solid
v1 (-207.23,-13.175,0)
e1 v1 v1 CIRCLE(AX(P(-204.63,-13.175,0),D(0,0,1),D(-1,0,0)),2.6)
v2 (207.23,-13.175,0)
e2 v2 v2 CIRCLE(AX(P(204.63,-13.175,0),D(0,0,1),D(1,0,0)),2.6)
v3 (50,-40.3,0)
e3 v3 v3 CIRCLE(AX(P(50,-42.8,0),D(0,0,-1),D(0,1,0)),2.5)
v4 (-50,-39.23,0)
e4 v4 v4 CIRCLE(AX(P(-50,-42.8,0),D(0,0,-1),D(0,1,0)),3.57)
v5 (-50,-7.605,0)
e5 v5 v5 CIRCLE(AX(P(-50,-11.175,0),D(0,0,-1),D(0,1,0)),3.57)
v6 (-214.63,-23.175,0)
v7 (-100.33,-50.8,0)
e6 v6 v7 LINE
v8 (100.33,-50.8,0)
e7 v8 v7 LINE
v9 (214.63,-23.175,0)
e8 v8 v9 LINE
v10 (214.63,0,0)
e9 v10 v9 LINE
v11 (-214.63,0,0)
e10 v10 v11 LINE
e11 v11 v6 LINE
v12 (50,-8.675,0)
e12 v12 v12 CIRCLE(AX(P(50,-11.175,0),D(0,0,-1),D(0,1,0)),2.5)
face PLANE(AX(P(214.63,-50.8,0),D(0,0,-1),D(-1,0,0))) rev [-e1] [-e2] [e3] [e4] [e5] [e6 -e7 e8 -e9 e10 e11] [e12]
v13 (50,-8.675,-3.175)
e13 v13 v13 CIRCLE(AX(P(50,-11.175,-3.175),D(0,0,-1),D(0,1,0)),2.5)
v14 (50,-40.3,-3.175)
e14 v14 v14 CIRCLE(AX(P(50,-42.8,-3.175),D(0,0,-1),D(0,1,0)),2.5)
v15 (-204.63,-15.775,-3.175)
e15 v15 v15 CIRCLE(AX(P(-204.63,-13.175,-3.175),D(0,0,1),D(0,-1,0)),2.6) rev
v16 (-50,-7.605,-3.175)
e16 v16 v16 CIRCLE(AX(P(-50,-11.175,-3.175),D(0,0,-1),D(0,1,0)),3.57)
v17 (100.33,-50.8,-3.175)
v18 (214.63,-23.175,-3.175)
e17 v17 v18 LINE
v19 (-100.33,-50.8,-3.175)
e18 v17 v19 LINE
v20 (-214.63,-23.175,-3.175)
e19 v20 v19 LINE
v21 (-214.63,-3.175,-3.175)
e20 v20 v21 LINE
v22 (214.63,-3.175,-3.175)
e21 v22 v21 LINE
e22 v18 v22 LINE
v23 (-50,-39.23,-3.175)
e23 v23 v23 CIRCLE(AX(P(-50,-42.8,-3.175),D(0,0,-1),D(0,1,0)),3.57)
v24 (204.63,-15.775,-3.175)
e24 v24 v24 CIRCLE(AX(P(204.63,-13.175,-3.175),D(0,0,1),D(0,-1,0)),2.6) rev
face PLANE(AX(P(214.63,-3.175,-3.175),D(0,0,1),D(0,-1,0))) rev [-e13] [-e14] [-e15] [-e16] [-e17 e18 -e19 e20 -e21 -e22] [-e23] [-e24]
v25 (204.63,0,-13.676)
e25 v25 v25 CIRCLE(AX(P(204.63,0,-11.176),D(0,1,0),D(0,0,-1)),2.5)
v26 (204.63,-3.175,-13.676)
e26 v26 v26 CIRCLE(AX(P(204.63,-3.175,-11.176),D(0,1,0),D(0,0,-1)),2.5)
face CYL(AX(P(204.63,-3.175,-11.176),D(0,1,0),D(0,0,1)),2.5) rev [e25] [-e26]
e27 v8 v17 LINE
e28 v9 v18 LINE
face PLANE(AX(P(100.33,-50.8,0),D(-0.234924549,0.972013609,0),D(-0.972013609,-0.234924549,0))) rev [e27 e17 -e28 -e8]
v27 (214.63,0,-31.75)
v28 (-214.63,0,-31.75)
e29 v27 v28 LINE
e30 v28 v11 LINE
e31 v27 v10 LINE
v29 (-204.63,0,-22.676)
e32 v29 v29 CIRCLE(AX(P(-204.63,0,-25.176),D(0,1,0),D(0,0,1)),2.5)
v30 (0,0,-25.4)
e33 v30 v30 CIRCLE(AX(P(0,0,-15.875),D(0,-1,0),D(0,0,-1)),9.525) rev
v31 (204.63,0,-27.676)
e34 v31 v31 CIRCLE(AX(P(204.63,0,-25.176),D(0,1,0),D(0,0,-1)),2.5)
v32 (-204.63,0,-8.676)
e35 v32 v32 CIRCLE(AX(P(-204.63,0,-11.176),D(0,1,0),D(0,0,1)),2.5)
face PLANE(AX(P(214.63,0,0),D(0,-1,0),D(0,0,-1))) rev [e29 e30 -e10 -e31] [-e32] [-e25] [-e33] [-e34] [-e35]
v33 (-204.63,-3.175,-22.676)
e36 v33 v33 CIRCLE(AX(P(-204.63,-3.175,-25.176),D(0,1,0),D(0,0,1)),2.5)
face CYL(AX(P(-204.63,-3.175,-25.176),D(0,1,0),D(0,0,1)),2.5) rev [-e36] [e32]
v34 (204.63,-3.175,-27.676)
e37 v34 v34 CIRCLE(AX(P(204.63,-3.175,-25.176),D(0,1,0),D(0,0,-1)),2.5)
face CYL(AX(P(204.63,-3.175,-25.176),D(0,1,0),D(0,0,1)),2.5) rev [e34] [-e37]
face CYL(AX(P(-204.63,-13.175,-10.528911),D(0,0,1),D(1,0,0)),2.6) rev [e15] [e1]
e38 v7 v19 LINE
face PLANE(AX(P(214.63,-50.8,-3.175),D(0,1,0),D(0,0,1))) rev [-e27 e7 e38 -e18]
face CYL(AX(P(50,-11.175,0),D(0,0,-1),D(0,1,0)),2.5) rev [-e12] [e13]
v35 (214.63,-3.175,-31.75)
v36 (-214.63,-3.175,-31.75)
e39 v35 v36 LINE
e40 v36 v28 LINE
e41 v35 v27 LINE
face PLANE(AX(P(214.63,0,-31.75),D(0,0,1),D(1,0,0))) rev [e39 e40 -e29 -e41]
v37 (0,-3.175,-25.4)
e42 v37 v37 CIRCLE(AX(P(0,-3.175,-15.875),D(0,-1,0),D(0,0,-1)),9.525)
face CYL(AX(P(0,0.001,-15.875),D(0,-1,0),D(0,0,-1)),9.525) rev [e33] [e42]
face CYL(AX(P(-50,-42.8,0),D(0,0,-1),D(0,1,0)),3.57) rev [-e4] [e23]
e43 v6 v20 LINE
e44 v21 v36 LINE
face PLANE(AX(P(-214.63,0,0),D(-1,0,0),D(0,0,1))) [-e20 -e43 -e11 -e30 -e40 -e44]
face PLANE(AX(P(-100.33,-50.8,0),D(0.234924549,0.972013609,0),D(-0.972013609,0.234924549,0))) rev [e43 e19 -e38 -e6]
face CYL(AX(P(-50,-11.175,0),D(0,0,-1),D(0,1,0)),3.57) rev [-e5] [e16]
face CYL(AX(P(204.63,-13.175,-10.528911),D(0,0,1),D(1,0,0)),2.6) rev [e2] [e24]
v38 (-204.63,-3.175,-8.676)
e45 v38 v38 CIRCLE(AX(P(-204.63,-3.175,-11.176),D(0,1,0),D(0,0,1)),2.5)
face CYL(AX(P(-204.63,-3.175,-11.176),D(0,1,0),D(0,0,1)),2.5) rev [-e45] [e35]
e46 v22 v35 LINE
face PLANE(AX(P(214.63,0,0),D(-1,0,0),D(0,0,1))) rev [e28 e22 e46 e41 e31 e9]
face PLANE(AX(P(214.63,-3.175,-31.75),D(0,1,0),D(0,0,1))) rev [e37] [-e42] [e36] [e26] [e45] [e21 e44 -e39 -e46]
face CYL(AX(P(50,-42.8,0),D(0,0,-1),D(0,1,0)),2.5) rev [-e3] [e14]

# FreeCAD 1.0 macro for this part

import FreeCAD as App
import Part
import Sketcher
Q = App.Units.Quantity


def add_polygon(sketch, points):
    """Adds a closed chain of lines whose ends are joined by coincident constraints."""
    first, n = sketch.GeometryCount, len(points)
    for a, b in zip(points, points[1:] + points[:1]):
        sketch.addGeometry(Part.LineSegment(App.Vector(*a, 0), App.Vector(*b, 0)), False)
    for i in range(n):
        sketch.addConstraint(Sketcher.Constraint("Coincident", first + i, 2, first + (i + 1) % n, 1))

doc = App.newDocument("Part")
body = doc.addObject("PartDesign::Body", "Body")

# Sketch on YZ plane
sketch1 = doc.addObject("Sketcher::SketchObject", "Sketch")
body.addObject(sketch1)
sketch1.AttachmentSupport = (doc.YZ_Plane, [""])
sketch1.MapMode = "FlatFace"
add_polygon(sketch1, [(0, -31.75), (0, 0), (-50.8, 0), (-50.8, -3.175), (-3.175, -3.175), (-3.175, -31.75)])  # lines 0-5
sketch1.addConstraint([
    Sketcher.Constraint("Vertical", 0),
    Sketcher.Constraint("Horizontal", 1),
    Sketcher.Constraint("Vertical", 2),
    Sketcher.Constraint("Horizontal", 3),
    Sketcher.Constraint("Vertical", 4),
    Sketcher.Constraint("Horizontal", 5),
    Sketcher.Constraint("Coincident", 0, 2, -1, 1),
    Sketcher.Constraint("Equal", 5, 2),
    Sketcher.Constraint("DistanceX", 1, 2, 1, 1, Q("2 in")),
    Sketcher.Constraint("DistanceY", 0, 1, 0, 2, Q("1.25 in")),
    Sketcher.Constraint("DistanceX", 3, 1, 3, 2, Q("1.875 in")),
])
pad1 = doc.addObject("PartDesign::Pad", "Pad")
body.addObject(pad1)
pad1.Profile = sketch1
pad1.Length = Q("16.9 in")
pad1.Midplane = True

# Sketch on XY plane
sketch2 = doc.addObject("Sketcher::SketchObject", "Sketch001")
body.addObject(sketch2)
sketch2.AttachmentSupport = (doc.XY_Plane, [""])
sketch2.MapMode = "FlatFace"
sketch2.AttachmentOffset = App.Placement(App.Vector(0, 0, -0.125 * 25.4), App.Rotation())
sketch2.addGeometry([
    Part.Circle(App.Vector(50, -11.175, 0), App.Vector(0, 0, 1), 2.5),
    Part.Circle(App.Vector(-50, -11.175, 0), App.Vector(0, 0, 1), 3.57),
    Part.Circle(App.Vector(-50, -42.8, 0), App.Vector(0, 0, 1), 3.57),
    Part.Circle(App.Vector(50, -42.8, 0), App.Vector(0, 0, 1), 2.5),
], False)
sketch2.addConstraint([
    Sketcher.Constraint("Equal", 1, 2),
    Sketcher.Constraint("Equal", 0, 3),
    Sketcher.Constraint("Symmetric", 0, 3, 1, 3, -2),
    Sketcher.Constraint("Symmetric", 2, 3, 3, 3, -2),
    Sketcher.Constraint("Vertical", 1, 3, 2, 3),
    Sketcher.Constraint("Diameter", 0, Q("5 mm")),
    Sketcher.Constraint("Diameter", 1, Q("7.14 mm")),
    Sketcher.Constraint("DistanceX", -1, 1, 0, 3, Q("50 mm")),
    Sketcher.Constraint("DistanceY", 0, 3, -1, 1, Q("11.175 mm")),
    Sketcher.Constraint("DistanceY", 2, 3, -1, 1, Q("42.8 mm")),
])
pocket1 = doc.addObject("PartDesign::Pocket", "Pocket")
body.addObject(pocket1)
pocket1.Profile = sketch2
pocket1.Type = "ThroughAll"
pocket1.Reversed = True

# Sketch on XY plane
sketch3 = doc.addObject("Sketcher::SketchObject", "Sketch002")
body.addObject(sketch3)
sketch3.AttachmentSupport = (doc.XY_Plane, [""])
sketch3.MapMode = "FlatFace"
sketch3.AttachmentOffset = App.Placement(App.Vector(0, 0, -0.125 * 25.4), App.Rotation())
add_polygon(sketch3, [(-100.33, -50.8), (-214.63, -50.8), (-214.63, -23.175)])  # lines 0-2
add_polygon(sketch3, [(214.63, -23.175), (214.63, -50.8), (100.33, -50.8)])  # lines 3-5
sketch3.addConstraint([
    Sketcher.Constraint("Horizontal", 0),
    Sketcher.Constraint("Vertical", 1),
    Sketcher.Constraint("Vertical", 3),
    Sketcher.Constraint("Horizontal", 4),
    Sketcher.Constraint("Symmetric", 0, 2, 3, 2, -2),
    Sketcher.Constraint("Horizontal", 1, 2, 5, 2),
    Sketcher.Constraint("Equal", 0, 4),
    Sketcher.Constraint("DistanceX", 0, 2, 0, 1, Q("4.5 in")),
    Sketcher.Constraint("DistanceY", 0, 2, -1, 1, Q("2 in")),
    Sketcher.Constraint("DistanceX", 2, 2, 3, 2, Q("12.4 in")),
    Sketcher.Constraint("DistanceY", 1, 1, 1, 2, Q("27.625 mm")),
])
pocket2 = doc.addObject("PartDesign::Pocket", "Pocket001")
body.addObject(pocket2)
pocket2.Profile = sketch3
pocket2.Length = Q("0.125 in")
pocket2.Reversed = True

# Sketch on XZ plane
sketch4 = doc.addObject("Sketcher::SketchObject", "Sketch003")
body.addObject(sketch4)
sketch4.AttachmentSupport = (doc.XZ_Plane, [""])
sketch4.MapMode = "FlatFace"
sketch4.addGeometry([
    Part.Circle(App.Vector(-204.63, -11.176, 0), App.Vector(0, 0, 1), 2.5),
    Part.Circle(App.Vector(-204.63, -25.176, 0), App.Vector(0, 0, 1), 2.5),
    Part.Circle(App.Vector(204.63, -25.176, 0), App.Vector(0, 0, 1), 2.5),
    Part.Circle(App.Vector(204.63, -11.176, 0), App.Vector(0, 0, 1), 2.5),
], False)
sketch4.addConstraint([
    Sketcher.Constraint("Equal", 0, 1),
    Sketcher.Constraint("Equal", 1, 2),
    Sketcher.Constraint("Equal", 2, 3),
    Sketcher.Constraint("Symmetric", 1, 3, 2, 3, -2),
    Sketcher.Constraint("Symmetric", 0, 3, 3, 3, -2),
    Sketcher.Constraint("Vertical", 0, 3, 1, 3),
    Sketcher.Constraint("Diameter", 0, Q("5 mm")),
    Sketcher.Constraint("DistanceY", 0, 3, -1, 1, Q("0.44 in")),
    Sketcher.Constraint("DistanceX", 0, 3, -1, 1, Q("204.63 mm")),
    Sketcher.Constraint("DistanceY", 1, 3, -1, 1, Q("25.176 mm")),
])
pocket3 = doc.addObject("PartDesign::Pocket", "Pocket002")
body.addObject(pocket3)
pocket3.Profile = sketch4
pocket3.Length = Q("0.125 in")
pocket3.Reversed = True

# Sketch on XZ plane
sketch5 = doc.addObject("Sketcher::SketchObject", "Sketch004")
body.addObject(sketch5)
sketch5.AttachmentSupport = (doc.XZ_Plane, [""])
sketch5.MapMode = "FlatFace"
sketch5.AttachmentOffset = App.Placement(App.Vector(0, 0, 0.125 * 25.4), App.Rotation())
sketch5.addGeometry(Part.Circle(App.Vector(0, -15.875, 0), App.Vector(0, 0, 1), 9.525), False)
sketch5.addConstraint([
    Sketcher.Constraint("PointOnObject", 0, 3, -2),
    Sketcher.Constraint("Diameter", 0, Q("0.75 in")),
    Sketcher.Constraint("DistanceY", 0, 3, -1, 1, Q("0.625 in")),
])
pocket4 = doc.addObject("PartDesign::Pocket", "Pocket003")
body.addObject(pocket4)
pocket4.Profile = sketch5
pocket4.Type = "UpToFirst"

# Sketch on XY plane
sketch6 = doc.addObject("Sketcher::SketchObject", "Sketch005")
body.addObject(sketch6)
sketch6.AttachmentSupport = (doc.XY_Plane, [""])
sketch6.MapMode = "FlatFace"
sketch6.addGeometry([
    Part.Circle(App.Vector(204.63, -13.175, 0), App.Vector(0, 0, 1), 2.6),
    Part.Circle(App.Vector(-204.63, -13.175, 0), App.Vector(0, 0, 1), 2.6),
], False)
sketch6.addConstraint([
    Sketcher.Constraint("Equal", 0, 1),
    Sketcher.Constraint("Symmetric", 0, 3, 1, 3, -2),
    Sketcher.Constraint("Diameter", 0, Q("5.2 mm")),
    Sketcher.Constraint("DistanceX", -1, 1, 0, 3, Q("204.63 mm")),
    Sketcher.Constraint("DistanceY", 0, 3, -1, 1, Q("13.175 mm")),
])
pocket5 = doc.addObject("PartDesign::Pocket", "Pocket004")
body.addObject(pocket5)
pocket5.Profile = sketch6
pocket5.Length = Q("0.125 in")

doc.recompute()
